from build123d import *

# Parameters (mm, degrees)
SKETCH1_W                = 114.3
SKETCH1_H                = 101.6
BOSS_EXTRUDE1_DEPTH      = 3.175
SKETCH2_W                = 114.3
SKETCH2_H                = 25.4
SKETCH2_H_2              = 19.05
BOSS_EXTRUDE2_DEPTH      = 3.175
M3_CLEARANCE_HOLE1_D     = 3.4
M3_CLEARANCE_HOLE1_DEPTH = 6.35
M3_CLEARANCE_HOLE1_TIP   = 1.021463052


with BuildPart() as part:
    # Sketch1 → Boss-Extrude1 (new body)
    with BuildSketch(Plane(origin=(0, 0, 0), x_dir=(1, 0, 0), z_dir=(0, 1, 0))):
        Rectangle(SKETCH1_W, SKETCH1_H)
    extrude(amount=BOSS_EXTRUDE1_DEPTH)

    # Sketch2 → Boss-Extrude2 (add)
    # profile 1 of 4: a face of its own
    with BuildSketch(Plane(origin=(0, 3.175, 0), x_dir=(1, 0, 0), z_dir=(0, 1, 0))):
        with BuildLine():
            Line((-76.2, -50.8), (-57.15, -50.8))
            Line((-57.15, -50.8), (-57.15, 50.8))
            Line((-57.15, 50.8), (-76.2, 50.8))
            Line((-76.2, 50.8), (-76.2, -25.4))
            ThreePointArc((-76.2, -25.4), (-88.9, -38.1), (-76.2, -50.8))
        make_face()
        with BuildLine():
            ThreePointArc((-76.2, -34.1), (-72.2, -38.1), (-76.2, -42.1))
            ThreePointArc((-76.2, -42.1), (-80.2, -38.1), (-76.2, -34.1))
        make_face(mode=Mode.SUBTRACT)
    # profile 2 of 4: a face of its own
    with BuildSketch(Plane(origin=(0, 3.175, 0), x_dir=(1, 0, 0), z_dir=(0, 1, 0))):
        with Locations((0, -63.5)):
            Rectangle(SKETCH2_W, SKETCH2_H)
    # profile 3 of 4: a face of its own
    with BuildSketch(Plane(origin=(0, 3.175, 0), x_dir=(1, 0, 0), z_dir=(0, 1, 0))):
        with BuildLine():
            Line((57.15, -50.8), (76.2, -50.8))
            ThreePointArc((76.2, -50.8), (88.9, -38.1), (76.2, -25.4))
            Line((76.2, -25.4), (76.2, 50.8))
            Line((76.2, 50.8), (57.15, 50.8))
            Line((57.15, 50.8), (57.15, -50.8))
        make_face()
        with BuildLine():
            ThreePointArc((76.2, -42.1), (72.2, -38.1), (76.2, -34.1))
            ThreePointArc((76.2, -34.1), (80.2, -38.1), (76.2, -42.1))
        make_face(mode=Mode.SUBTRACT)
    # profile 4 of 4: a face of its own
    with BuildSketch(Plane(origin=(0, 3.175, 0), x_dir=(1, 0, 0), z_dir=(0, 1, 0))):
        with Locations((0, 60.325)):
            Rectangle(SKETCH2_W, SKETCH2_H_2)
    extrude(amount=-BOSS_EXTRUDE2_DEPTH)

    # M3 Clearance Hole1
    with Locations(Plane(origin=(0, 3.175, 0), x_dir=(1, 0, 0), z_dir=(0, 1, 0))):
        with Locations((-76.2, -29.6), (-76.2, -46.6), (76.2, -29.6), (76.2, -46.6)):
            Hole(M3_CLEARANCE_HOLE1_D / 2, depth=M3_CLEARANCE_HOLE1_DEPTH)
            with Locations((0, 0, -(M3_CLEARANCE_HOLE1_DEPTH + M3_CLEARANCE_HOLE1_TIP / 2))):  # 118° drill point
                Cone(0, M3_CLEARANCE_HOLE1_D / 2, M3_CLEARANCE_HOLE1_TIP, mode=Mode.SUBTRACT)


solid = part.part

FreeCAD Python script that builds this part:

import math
import FreeCAD as App
import Part
import Sketcher
Q = App.Units.Quantity

doc = App.newDocument("Part")
body = doc.addObject("PartDesign::Body", "Body")

# Sketch on XZ plane
sketch1 = doc.addObject("Sketcher::SketchObject", "Sketch")
body.addObject(sketch1)
sketch1.AttachmentSupport = (doc.XZ_Plane, [""])
sketch1.MapMode = "FlatFace"
sketch1.addGeometry([
    Part.LineSegment(App.Vector(-57, -51, 0), App.Vector(-57, 51, 0)),
    Part.LineSegment(App.Vector(-57, 51, 0), App.Vector(57, 51, 0)),
    Part.LineSegment(App.Vector(57, 51, 0), App.Vector(57, -51, 0)),
    Part.LineSegment(App.Vector(57, -51, 0), App.Vector(-57, -51, 0)),
], False)
sketch1.addConstraint([
    Sketcher.Constraint("Coincident", 0, 2, 1, 1),
    Sketcher.Constraint("Coincident", 1, 2, 2, 1),
    Sketcher.Constraint("Coincident", 2, 2, 3, 1),
    Sketcher.Constraint("Coincident", 3, 2, 0, 1),
    Sketcher.Constraint("Vertical", 0),
    Sketcher.Constraint("Horizontal", 1),
    Sketcher.Constraint("Vertical", 2),
    Sketcher.Constraint("Horizontal", 3),
    Sketcher.Constraint("Symmetric", 0, 2, 2, 2, -1, 1),
    Sketcher.Constraint("DistanceY", 0, 1, 0, 2, Q("4 in")),
    Sketcher.Constraint("DistanceX", 1, 1, 1, 2, Q("4.5 in")),
])
pad1 = doc.addObject("PartDesign::Pad", "Pad")
body.addObject(pad1)
pad1.Profile = sketch1
pad1.Length = Q("0.125 in")
pad1.Reversed = True

# Sketch on XZ plane
sketch2 = doc.addObject("Sketcher::SketchObject", "Sketch001")
body.addObject(sketch2)
sketch2.AttachmentSupport = (doc.XZ_Plane, [""])
sketch2.MapMode = "FlatFace"
sketch2.AttachmentOffset = App.Placement(App.Vector(0, 0, -0.125 * 25.4), App.Rotation())
sketch2.addGeometry([
    Part.LineSegment(App.Vector(-76.2, 50.8, 0), App.Vector(-57.1, 50.8, 0)),  # 0
    Part.LineSegment(App.Vector(-57.1, 50.8, 0), App.Vector(-57.1, -50.8, 0)),  # 1
    Part.LineSegment(App.Vector(-57.1, -50.8, 0), App.Vector(-76.2, -50.8, 0)),  # 2
    Part.LineSegment(App.Vector(-76.2, -50.8, 0), App.Vector(-76.2, 25.4, 0)),  # 3
    Part.ArcOfCircle(Part.Circle(App.Vector(-76.2, 38.1, 0), App.Vector(0, 0, 1), 12.7), math.radians(90), math.radians(270)),  # 4
    Part.Circle(App.Vector(-76.2, 38.1, 0), App.Vector(0, 0, 1), 4),  # 5
    Part.LineSegment(App.Vector(-57.1, 50.8, 0), App.Vector(-57.1, 76.2, 0)),  # 6
    Part.LineSegment(App.Vector(-57.1, 76.2, 0), App.Vector(57.1, 76.2, 0)),  # 7
    Part.LineSegment(App.Vector(57.1, 76.2, 0), App.Vector(57.1, 50.8, 0)),  # 8
    Part.LineSegment(App.Vector(57.1, 50.8, 0), App.Vector(-57.1, 50.8, 0)),  # 9
    Part.LineSegment(App.Vector(57.1, 50.8, 0), App.Vector(76.2, 50.8, 0)),  # 10
    Part.ArcOfCircle(Part.Circle(App.Vector(76.2, 38.1, 0), App.Vector(0, 0, 1), 12.7), math.radians(-90), math.radians(90)),  # 11
    Part.LineSegment(App.Vector(76.2, 25.4, 0), App.Vector(76.2, -50.8, 0)),  # 12
    Part.LineSegment(App.Vector(76.2, -50.8, 0), App.Vector(57.1, -50.8, 0)),  # 13
    Part.LineSegment(App.Vector(57.1, -50.8, 0), App.Vector(57.1, 50.8, 0)),  # 14
    Part.Circle(App.Vector(76.2, 38.1, 0), App.Vector(0, 0, 1), 4),  # 15
    Part.LineSegment(App.Vector(-57.1, -69.8, 0), App.Vector(-57.1, -50.8, 0)),  # 16
    Part.LineSegment(App.Vector(-57.1, -50.8, 0), App.Vector(57.1, -50.8, 0)),  # 17
    Part.LineSegment(App.Vector(57.1, -50.8, 0), App.Vector(57.1, -69.8, 0)),  # 18
    Part.LineSegment(App.Vector(57.1, -69.8, 0), App.Vector(-57.1, -69.8, 0)),  # 19
], False)
sketch2.addConstraint([
    Sketcher.Constraint("Coincident", 0, 2, 1, 1),
    Sketcher.Constraint("Coincident", 1, 2, 2, 1),
    Sketcher.Constraint("Coincident", 2, 2, 3, 1),
    Sketcher.Constraint("Coincident", 3, 2, 4, 2),
    Sketcher.Constraint("Tangent", 4, 1, 0, 1),
    Sketcher.Constraint("Coincident", 6, 2, 7, 1),
    Sketcher.Constraint("Coincident", 7, 2, 8, 1),
    Sketcher.Constraint("Coincident", 8, 2, 9, 1),
    Sketcher.Constraint("Coincident", 9, 2, 6, 1),
    Sketcher.Constraint("Tangent", 10, 2, 11, 2),
    Sketcher.Constraint("Coincident", 11, 1, 12, 1),
    Sketcher.Constraint("Coincident", 12, 2, 13, 1),
    Sketcher.Constraint("Coincident", 13, 2, 14, 1),
    Sketcher.Constraint("Coincident", 14, 2, 10, 1),
    Sketcher.Constraint("Coincident", 16, 2, 17, 1),
    Sketcher.Constraint("Coincident", 17, 2, 18, 1),
    Sketcher.Constraint("Coincident", 18, 2, 19, 1),
    Sketcher.Constraint("Coincident", 19, 2, 16, 1),
    Sketcher.Constraint("Horizontal", 0),
    Sketcher.Constraint("Vertical", 1),
    Sketcher.Constraint("Horizontal", 2),
    Sketcher.Constraint("Vertical", 3),
    Sketcher.Constraint("Vertical", 6),
    Sketcher.Constraint("Horizontal", 7),
    Sketcher.Constraint("Vertical", 8),
    Sketcher.Constraint("Horizontal", 9),
    Sketcher.Constraint("Horizontal", 10),
    Sketcher.Constraint("Vertical", 12),
    Sketcher.Constraint("Horizontal", 13),
    Sketcher.Constraint("Vertical", 14),
    Sketcher.Constraint("Vertical", 16),
    Sketcher.Constraint("Horizontal", 17),
    Sketcher.Constraint("Vertical", 18),
    Sketcher.Constraint("Horizontal", 19),
    Sketcher.Constraint("Coincident", 5, 3, 4, 3),
    Sketcher.Constraint("Coincident", 15, 3, 11, 3),
    Sketcher.Constraint("Coincident", 9, 2, 0, 2),
    Sketcher.Constraint("Coincident", 14, 2, 8, 2),
    Sketcher.Constraint("Coincident", 16, 2, 1, 2),
    Sketcher.Constraint("Coincident", 17, 2, 13, 2),
    Sketcher.Constraint("Equal", 4, 11),
    Sketcher.Constraint("Equal", 5, 15),
    Sketcher.Constraint("Symmetric", 1, 2, 8, 2, -1, 1),
    Sketcher.Constraint("Vertical", 5, 3, 2, 2),
    Sketcher.Constraint("Vertical", 10, 2, 11, 1),
    Sketcher.Constraint("Equal", 2, 10),
    Sketcher.Constraint("Equal", 13, 16),
    Sketcher.Constraint("Radius", 4, Q("0.5 in")),
    Sketcher.Constraint("DistanceY", 1, 2, 1, 1, Q("4 in")),
    Sketcher.Constraint("DistanceY", 6, 1, 6, 2, Q("1 in")),
    Sketcher.Constraint("DistanceX", 7, 1, 7, 2, Q("4.5 in")),
    Sketcher.Constraint("DistanceX", 4, 3, -1, 1, Q("3 in")),
    Sketcher.Constraint("Diameter", 5, Q("8 mm")),
])
pad2 = doc.addObject("PartDesign::Pad", "Pad001")
body.addObject(pad2)
pad2.Profile = sketch2
pad2.Length = Q("0.125 in")

# Sketch on XZ plane
sketch3 = doc.addObject("Sketcher::SketchObject", "Sketch002")
body.addObject(sketch3)
sketch3.AttachmentSupport = (doc.XZ_Plane, [""])
sketch3.MapMode = "FlatFace"
sketch3.AttachmentOffset = App.Placement(App.Vector(0, 0, -0.125 * 25.4), App.Rotation())
sketch3.addGeometry([
    Part.Circle(App.Vector(-76.2, 29.6, 0), App.Vector(0, 0, 1), 1.7),
    Part.Circle(App.Vector(-76.2, 46.6, 0), App.Vector(0, 0, 1), 1.7),
    Part.Circle(App.Vector(76.2, 29.6, 0), App.Vector(0, 0, 1), 1.7),
    Part.Circle(App.Vector(76.2, 46.6, 0), App.Vector(0, 0, 1), 1.7),
], False)
sketch3.addConstraint([
    Sketcher.Constraint("Equal", 0, 1),
    Sketcher.Constraint("Equal", 1, 2),
    Sketcher.Constraint("Equal", 2, 3),
    Sketcher.Constraint("Symmetric", 0, 3, 2, 3, -2),
    Sketcher.Constraint("Symmetric", 1, 3, 3, 3, -2),
    Sketcher.Constraint("Vertical", 0, 3, 1, 3),
    Sketcher.Constraint("DistanceX", 0, 3, -1, 1, Q("3 in")),
    Sketcher.Constraint("Diameter", 0, Q("3.4 mm")),
    Sketcher.Constraint("DistanceY", -1, 1, 0, 3, Q("29.6 mm")),
    Sketcher.Constraint("DistanceY", -1, 1, 1, 3, Q("46.6 mm")),
])
doc.recompute()
hole = doc.addObject("PartDesign::Hole", "Hole")
body.addObject(hole)
hole.Profile = sketch3
hole.ThreadType = "None"
hole.Diameter = 3.4
hole.DepthType = "Dimension"
hole.Depth = Q("0.25 in")
hole.DrillPoint = "Angled"
hole.DrillPointAngle = 118
hole.Reversed = True

doc.recompute()
